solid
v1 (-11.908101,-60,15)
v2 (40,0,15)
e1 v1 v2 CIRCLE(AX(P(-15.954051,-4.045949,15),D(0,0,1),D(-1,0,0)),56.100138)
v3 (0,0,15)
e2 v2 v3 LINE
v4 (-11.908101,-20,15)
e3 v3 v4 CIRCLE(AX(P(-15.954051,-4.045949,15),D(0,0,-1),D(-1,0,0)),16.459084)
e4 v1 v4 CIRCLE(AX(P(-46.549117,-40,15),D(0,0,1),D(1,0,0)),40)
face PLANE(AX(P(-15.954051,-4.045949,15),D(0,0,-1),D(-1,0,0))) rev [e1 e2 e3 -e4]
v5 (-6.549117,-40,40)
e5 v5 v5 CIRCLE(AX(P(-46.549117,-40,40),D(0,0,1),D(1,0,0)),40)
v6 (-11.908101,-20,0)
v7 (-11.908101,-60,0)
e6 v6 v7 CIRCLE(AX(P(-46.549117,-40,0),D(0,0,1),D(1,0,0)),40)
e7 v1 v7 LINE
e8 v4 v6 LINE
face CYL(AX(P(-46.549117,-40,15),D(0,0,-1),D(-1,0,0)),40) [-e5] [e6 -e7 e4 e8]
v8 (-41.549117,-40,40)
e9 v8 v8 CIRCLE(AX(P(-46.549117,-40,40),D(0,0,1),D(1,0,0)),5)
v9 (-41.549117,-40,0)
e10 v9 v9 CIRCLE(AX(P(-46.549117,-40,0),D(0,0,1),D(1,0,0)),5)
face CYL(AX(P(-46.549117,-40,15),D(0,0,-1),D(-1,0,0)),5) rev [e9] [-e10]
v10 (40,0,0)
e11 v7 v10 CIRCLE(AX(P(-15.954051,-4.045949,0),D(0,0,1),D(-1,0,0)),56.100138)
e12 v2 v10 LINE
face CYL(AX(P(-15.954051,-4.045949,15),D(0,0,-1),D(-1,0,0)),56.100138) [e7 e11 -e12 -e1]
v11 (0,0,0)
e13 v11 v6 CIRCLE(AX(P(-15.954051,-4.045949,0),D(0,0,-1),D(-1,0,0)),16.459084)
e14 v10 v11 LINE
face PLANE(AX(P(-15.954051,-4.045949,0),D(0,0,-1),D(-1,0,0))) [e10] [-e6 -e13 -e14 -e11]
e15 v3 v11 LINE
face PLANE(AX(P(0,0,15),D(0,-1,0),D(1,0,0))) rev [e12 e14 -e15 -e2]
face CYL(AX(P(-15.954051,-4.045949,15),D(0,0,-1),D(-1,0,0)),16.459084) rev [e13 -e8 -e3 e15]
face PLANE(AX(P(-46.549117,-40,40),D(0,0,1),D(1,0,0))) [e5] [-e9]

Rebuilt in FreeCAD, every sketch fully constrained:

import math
import FreeCAD as App
import Part
import Sketcher
Q = App.Units.Quantity

doc = App.newDocument("Part")
body = doc.addObject("PartDesign::Body", "Body")

# Sketch on XY plane
sketch1 = body.newObject("Sketcher::SketchObject", "Sketch")
sketch1.AttachmentSupport = (doc.getObject("XY_Plane"), [""])
sketch1.MapMode = "FlatFace"
sketch1.addGeometry(Part.LineSegment(App.Vector(40, 0, 0), App.Vector(0, 0, 0)), False)
sketch1.addGeometry(Part.ArcOfCircle(Part.Circle(App.Vector(-15.954051, -4.045949, 0), App.Vector(0, 0, 1), 16.459084), math.radians(-75.769783), math.radians(14.230217)), False)
sketch1.addGeometry(Part.ArcOfCircle(Part.Circle(App.Vector(-46.549117, -40, 0), App.Vector(0, 0, 1), 40), math.radians(30), math.radians(330)), False)
sketch1.addGeometry(Part.ArcOfCircle(Part.Circle(App.Vector(-15.954051, -4.045949, 0), App.Vector(0, 0, 1), 56.100138), math.radians(-85.86423), math.radians(4.13577)), False)
sketch1.addGeometry(Part.Circle(App.Vector(-46.549117, -40, 0), App.Vector(0, 0, 1), 5), False)
sketch1.addConstraint(Sketcher.Constraint("Coincident", 0, 2, 1, 2))
sketch1.addConstraint(Sketcher.Constraint("Coincident", 1, 1, 2, 1))
sketch1.addConstraint(Sketcher.Constraint("Coincident", 2, 2, 3, 1))
sketch1.addConstraint(Sketcher.Constraint("Coincident", 3, 2, 0, 1))
sketch1.addConstraint(Sketcher.Constraint("Horizontal", 0))
sketch1.addConstraint(Sketcher.Constraint("Coincident", 0, 2, -1, 1))
sketch1.addConstraint(Sketcher.Constraint("Coincident", 3, 3, 1, 3))
sketch1.addConstraint(Sketcher.Constraint("Coincident", 4, 3, 2, 3))
sketch1.addConstraint(Sketcher.Constraint("Vertical", 1, 1, 2, 2))
sketch1.addConstraint(Sketcher.Constraint("Diameter", 4, Q("10 mm")))
sketch1.addConstraint(Sketcher.Constraint("Radius", 2, Q("40 mm")))
sketch1.addConstraint(Sketcher.Constraint("DistanceX", 0, 2, 0, 1, Q("40 mm")))
sketch1.addConstraint(Sketcher.Constraint("DistanceY", 2, 3, -1, 1, Q("40 mm")))
sketch1.addConstraint(Sketcher.Constraint("DistanceY", 1, 1, -1, 1, Q("20 mm")))
sketch1.addConstraint(Sketcher.Constraint("Radius", 3, Q("56.100138 mm")))
pad1 = body.newObject("PartDesign::Pad", "Pad")
pad1.Profile = sketch1
pad1.Length = 15

# Sketch on XY plane
sketch2 = body.newObject("Sketcher::SketchObject", "Sketch001")
sketch2.AttachmentSupport = (doc.getObject("XY_Plane"), [""])
sketch2.MapMode = "FlatFace"
sketch2.AttachmentOffset = App.Placement(App.Vector(0, 0, 15), App.Rotation())
sketch2.addGeometry(Part.Circle(App.Vector(-46.549117, -40, 0), App.Vector(0, 0, 1), 40), False)
sketch2.addGeometry(Part.Circle(App.Vector(-46.549117, -40, 0), App.Vector(0, 0, 1), 5), False)
sketch2.addConstraint(Sketcher.Constraint("Coincident", 1, 3, 0, 3))
sketch2.addConstraint(Sketcher.Constraint("Diameter", 0, Q("80 mm")))
sketch2.addConstraint(Sketcher.Constraint("Diameter", 1, Q("10 mm")))
sketch2.addConstraint(Sketcher.Constraint("DistanceY", 0, 3, -1, 1, Q("40 mm")))
sketch2.addConstraint(Sketcher.Constraint("DistanceX", 0, 3, -1, 1, Q("46.549117 mm")))
pad2 = body.newObject("PartDesign::Pad", "Pad001")
pad2.Profile = sketch2
pad2.Length = 25

doc.recompute()
